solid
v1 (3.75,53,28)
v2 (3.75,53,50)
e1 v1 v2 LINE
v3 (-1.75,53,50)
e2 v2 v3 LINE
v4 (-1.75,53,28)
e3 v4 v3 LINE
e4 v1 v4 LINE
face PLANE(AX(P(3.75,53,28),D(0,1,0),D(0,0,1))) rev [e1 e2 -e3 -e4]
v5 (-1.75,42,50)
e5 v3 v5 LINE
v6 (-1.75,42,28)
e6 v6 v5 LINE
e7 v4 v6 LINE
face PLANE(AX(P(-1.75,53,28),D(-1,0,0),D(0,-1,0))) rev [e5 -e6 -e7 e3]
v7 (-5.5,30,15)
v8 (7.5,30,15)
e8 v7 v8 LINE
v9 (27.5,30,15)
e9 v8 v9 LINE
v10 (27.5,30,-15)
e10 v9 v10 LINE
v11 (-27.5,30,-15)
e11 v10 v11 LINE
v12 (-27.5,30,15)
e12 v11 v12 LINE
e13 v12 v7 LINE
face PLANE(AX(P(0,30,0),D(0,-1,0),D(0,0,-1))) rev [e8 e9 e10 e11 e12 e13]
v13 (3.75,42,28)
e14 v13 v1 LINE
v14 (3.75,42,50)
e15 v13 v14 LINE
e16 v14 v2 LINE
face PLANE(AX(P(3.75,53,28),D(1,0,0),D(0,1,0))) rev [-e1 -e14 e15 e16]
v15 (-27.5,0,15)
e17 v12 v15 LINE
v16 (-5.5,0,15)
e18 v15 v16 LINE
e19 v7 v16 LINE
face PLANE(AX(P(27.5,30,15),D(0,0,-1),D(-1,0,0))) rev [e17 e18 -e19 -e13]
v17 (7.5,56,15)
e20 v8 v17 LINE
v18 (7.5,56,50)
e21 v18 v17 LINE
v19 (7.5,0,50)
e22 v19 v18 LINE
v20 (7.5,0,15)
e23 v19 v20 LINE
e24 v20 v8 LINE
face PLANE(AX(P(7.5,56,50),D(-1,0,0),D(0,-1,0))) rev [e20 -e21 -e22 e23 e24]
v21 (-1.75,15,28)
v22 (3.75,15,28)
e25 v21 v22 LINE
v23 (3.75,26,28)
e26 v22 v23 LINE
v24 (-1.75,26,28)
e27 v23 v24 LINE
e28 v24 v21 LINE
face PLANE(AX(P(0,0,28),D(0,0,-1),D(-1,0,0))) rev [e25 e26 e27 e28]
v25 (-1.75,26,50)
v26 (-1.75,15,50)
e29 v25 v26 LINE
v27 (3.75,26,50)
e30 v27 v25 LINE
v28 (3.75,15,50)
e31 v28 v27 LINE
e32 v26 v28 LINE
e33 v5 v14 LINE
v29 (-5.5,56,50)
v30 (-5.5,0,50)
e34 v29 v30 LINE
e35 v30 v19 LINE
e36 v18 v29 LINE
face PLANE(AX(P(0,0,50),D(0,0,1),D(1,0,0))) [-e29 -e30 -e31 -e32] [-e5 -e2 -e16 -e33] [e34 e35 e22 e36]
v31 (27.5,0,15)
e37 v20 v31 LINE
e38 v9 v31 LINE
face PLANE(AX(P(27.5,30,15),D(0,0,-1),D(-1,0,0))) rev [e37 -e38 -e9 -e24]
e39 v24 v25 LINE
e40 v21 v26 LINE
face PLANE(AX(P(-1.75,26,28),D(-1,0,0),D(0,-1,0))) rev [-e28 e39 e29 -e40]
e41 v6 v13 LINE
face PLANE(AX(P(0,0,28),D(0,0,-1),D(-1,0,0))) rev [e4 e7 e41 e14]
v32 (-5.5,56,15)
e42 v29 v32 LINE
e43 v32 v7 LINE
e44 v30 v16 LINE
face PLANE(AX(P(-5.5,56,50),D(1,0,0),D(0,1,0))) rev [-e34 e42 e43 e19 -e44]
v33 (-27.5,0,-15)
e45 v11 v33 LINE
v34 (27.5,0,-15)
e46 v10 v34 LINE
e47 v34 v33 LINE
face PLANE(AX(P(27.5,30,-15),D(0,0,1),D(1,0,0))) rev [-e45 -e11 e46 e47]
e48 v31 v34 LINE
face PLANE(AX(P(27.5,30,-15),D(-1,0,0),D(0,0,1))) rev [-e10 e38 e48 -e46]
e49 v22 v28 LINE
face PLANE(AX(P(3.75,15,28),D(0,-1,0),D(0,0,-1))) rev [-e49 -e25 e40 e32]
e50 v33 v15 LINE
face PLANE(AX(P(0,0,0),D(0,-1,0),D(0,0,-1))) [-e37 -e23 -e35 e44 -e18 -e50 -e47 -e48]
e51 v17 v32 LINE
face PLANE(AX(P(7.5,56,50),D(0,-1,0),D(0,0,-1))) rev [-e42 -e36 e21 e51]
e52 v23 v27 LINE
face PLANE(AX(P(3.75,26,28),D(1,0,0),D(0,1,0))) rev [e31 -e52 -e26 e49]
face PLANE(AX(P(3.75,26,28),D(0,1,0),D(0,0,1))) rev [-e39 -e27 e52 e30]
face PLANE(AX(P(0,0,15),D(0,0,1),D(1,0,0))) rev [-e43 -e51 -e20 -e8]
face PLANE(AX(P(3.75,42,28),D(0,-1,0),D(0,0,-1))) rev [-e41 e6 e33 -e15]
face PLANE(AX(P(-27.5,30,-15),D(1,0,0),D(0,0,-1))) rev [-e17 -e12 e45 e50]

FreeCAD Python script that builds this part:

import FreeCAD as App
import Part
import Sketcher

V = App.Vector
Q = App.Units.Quantity

doc = App.newDocument("Part")
params = doc.addObject("Spreadsheet::Sheet", "Params")
for row, (alias, value) in enumerate([
    ("sketch1_width", "55 mm"),
    ("sketch1_height", "30 mm"),
    ("pad1_length", "30 mm"),
    ("sketch2_width", "13 mm"),
    ("sketch2_height", "56 mm"),
    ("pad2_length", "35 mm"),
    ("sketch3_height", "11 mm"),
    ("sketch3_width", "5.5 mm"),
    ("pocket1_length", "22 mm"),
], start=1):
    params.set(f"A{row}", alias)
    params.set(f"B{row}", "=" + value)
    params.setAlias(f"B{row}", alias)

body = doc.addObject("PartDesign::Body", "Body")

sketch1 = body.newObject("Sketcher::SketchObject", "Sketch")
sketch1.AttachmentSupport = (doc.getObject("XZ_Plane"), [""])
sketch1.MapMode = "FlatFace"
sketch1.addGeometry([
    Part.LineSegment(V(-27.5, -15, 0), V(-27.5, 15, 0)),
    Part.LineSegment(V(-27.5, 15, 0), V(27.5, 15, 0)),
    Part.LineSegment(V(27.5, 15, 0), V(27.5, -15, 0)),
    Part.LineSegment(V(27.5, -15, 0), V(-27.5, -15, 0)),
], False)
sketch1.addConstraint([
    Sketcher.Constraint("Coincident", 0, 2, 1, 1),
    Sketcher.Constraint("Coincident", 1, 2, 2, 1),
    Sketcher.Constraint("Coincident", 2, 2, 3, 1),
    Sketcher.Constraint("Coincident", 3, 2, 0, 1),
    Sketcher.Constraint("Vertical", 0),
    Sketcher.Constraint("Horizontal", 1),
    Sketcher.Constraint("Vertical", 2),
    Sketcher.Constraint("Horizontal", 3),
    Sketcher.Constraint("Symmetric", 0, 2, 2, 2, -1, 1),
    Sketcher.Constraint("DistanceX", 1, 1, 1, 2, Q("55 mm")),
    Sketcher.Constraint("DistanceY", 0, 1, 0, 2, Q("30 mm")),
])
sketch1.setExpression("Constraints[9]", "Params.sketch1_width")
sketch1.setExpression("Constraints[10]", "Params.sketch1_height")
pad1 = body.newObject("PartDesign::Pad", "Pad")
pad1.Profile = sketch1
pad1.setExpression("Length", "Params.pad1_length")
pad1.Reversed = True

sketch2 = body.newObject("Sketcher::SketchObject", "Sketch001")
sketch2.AttachmentSupport = (doc.getObject("XY_Plane"), [""])
sketch2.MapMode = "FlatFace"
sketch2.AttachmentOffset = App.Placement(V(0, 0, 15), App.Rotation())
sketch2.addGeometry([
    Part.LineSegment(V(-5.5, 56, 0), V(-5.5, 0, 0)),
    Part.LineSegment(V(-5.5, 0, 0), V(7.5, 0, 0)),
    Part.LineSegment(V(7.5, 0, 0), V(7.5, 56, 0)),
    Part.LineSegment(V(7.5, 56, 0), V(-5.5, 56, 0)),
], False)
sketch2.addConstraint([
    Sketcher.Constraint("Coincident", 0, 2, 1, 1),
    Sketcher.Constraint("Coincident", 1, 2, 2, 1),
    Sketcher.Constraint("Coincident", 2, 2, 3, 1),
    Sketcher.Constraint("Coincident", 3, 2, 0, 1),
    Sketcher.Constraint("Vertical", 0),
    Sketcher.Constraint("Horizontal", 1),
    Sketcher.Constraint("Vertical", 2),
    Sketcher.Constraint("Horizontal", 3),
    Sketcher.Constraint("PointOnObject", 0, 2, -1),
    Sketcher.Constraint("DistanceX", 1, 1, 1, 2, Q("13 mm")),
    Sketcher.Constraint("DistanceY", 0, 2, 0, 1, Q("56 mm")),
    Sketcher.Constraint("DistanceX", 0, 2, -1, 1, Q("5.5 mm")),
])
sketch2.setExpression("Constraints[9]", "Params.sketch2_width")
sketch2.setExpression("Constraints[10]", "Params.sketch2_height")
pad2 = body.newObject("PartDesign::Pad", "Pad001")
pad2.Profile = sketch2
pad2.setExpression("Length", "Params.pad2_length")

sketch3 = body.newObject("Sketcher::SketchObject", "Sketch002")
sketch3.AttachmentSupport = (doc.getObject("XY_Plane"), [""])
sketch3.MapMode = "FlatFace"
sketch3.AttachmentOffset = App.Placement(V(0, 0, 50), App.Rotation())
sketch3.addGeometry([
    Part.LineSegment(V(-1.75, 26, 0), V(-1.75, 15, 0)),
    Part.LineSegment(V(-1.75, 15, 0), V(3.75, 15, 0)),
    Part.LineSegment(V(3.75, 15, 0), V(3.75, 26, 0)),
    Part.LineSegment(V(3.75, 26, 0), V(-1.75, 26, 0)),
    Part.LineSegment(V(-1.75, 53, 0), V(-1.75, 42, 0)),
    Part.LineSegment(V(-1.75, 42, 0), V(3.75, 42, 0)),
    Part.LineSegment(V(3.75, 42, 0), V(3.75, 53, 0)),
    Part.LineSegment(V(3.75, 53, 0), V(-1.75, 53, 0)),
], False)
sketch3.addConstraint([
    Sketcher.Constraint("Coincident", 0, 2, 1, 1),
    Sketcher.Constraint("Coincident", 1, 2, 2, 1),
    Sketcher.Constraint("Coincident", 2, 2, 3, 1),
    Sketcher.Constraint("Coincident", 3, 2, 0, 1),
    Sketcher.Constraint("Coincident", 4, 2, 5, 1),
    Sketcher.Constraint("Coincident", 5, 2, 6, 1),
    Sketcher.Constraint("Coincident", 6, 2, 7, 1),
    Sketcher.Constraint("Coincident", 7, 2, 4, 1),
    Sketcher.Constraint("Vertical", 0),
    Sketcher.Constraint("Horizontal", 1),
    Sketcher.Constraint("Vertical", 2),
    Sketcher.Constraint("Horizontal", 3),
    Sketcher.Constraint("Vertical", 4),
    Sketcher.Constraint("Horizontal", 5),
    Sketcher.Constraint("Vertical", 6),
    Sketcher.Constraint("Horizontal", 7),
    Sketcher.Constraint("Vertical", 3, 2, 4, 2),
    Sketcher.Constraint("Vertical", 2, 2, 5, 2),
    Sketcher.Constraint("Equal", 2, 4),
    Sketcher.Constraint("DistanceY", 0, 2, 0, 1, Q("11 mm")),
    Sketcher.Constraint("DistanceX", 1, 1, 1, 2, Q("5.5 mm")),
    Sketcher.Constraint("DistanceY", -1, 1, 0, 2, Q("15 mm")),
    Sketcher.Constraint("DistanceY", -1, 1, 4, 2, Q("42 mm")),
    Sketcher.Constraint("DistanceX", 0, 2, -1, 1, Q("1.75 mm")),
])
sketch3.setExpression("Constraints[19]", "Params.sketch3_height")
sketch3.setExpression("Constraints[20]", "Params.sketch3_width")
pocket1 = body.newObject("PartDesign::Pocket", "Pocket")
pocket1.Profile = sketch3
pocket1.setExpression("Length", "Params.pocket1_length")

doc.recompute()
